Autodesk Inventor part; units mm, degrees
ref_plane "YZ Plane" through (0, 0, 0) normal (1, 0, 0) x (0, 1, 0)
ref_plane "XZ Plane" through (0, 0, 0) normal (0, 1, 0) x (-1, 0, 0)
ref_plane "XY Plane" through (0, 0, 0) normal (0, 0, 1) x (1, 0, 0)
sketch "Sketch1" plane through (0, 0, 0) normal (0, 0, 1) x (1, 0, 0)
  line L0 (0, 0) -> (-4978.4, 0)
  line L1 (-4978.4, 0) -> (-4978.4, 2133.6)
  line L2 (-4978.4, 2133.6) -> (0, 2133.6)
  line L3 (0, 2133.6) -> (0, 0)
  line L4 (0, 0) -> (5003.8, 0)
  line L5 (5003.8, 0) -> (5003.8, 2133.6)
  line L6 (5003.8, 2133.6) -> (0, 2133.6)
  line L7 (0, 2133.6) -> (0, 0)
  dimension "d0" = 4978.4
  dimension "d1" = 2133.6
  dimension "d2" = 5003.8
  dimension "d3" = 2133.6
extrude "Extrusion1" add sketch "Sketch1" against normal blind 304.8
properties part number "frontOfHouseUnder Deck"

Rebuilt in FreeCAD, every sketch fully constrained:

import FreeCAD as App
import Part
import Sketcher
from FreeCAD import Vector
Q = App.Units.Quantity


def add_polygon(sketch, points):
    """Adds a closed chain of lines whose ends are joined by coincident constraints."""
    first, n = sketch.GeometryCount, len(points)
    for a, b in zip(points, points[1:] + points[:1]):
        sketch.addGeometry(Part.LineSegment(App.Vector(*a, 0), App.Vector(*b, 0)), False)
    for i in range(n):
        sketch.addConstraint(Sketcher.Constraint("Coincident", first + i, 2, first + (i + 1) % n, 1))

doc = App.newDocument("Part")
params = doc.addObject("Spreadsheet::Sheet", "Params")
for row, (alias, value) in enumerate([
    ("sketch1_height", "84 in"),
    ("pad1_length", "12 in"),
], start=1):
    params.set(f"A{row}", alias)
    params.set(f"B{row}", "=" + value)
    params.setAlias(f"B{row}", alias)

body = doc.addObject("PartDesign::Body", "Body")

sketch1 = doc.addObject("Sketcher::SketchObject", "Sketch")
body.addObject(sketch1)
sketch1.AttachmentSupport = (doc.XY_Plane, [""])
sketch1.MapMode = "FlatFace"
add_polygon(sketch1, [(-4978, 0), (5004, 0), (5004, 2134), (-4978, 2134)])
sketch1.addConstraint(Sketcher.Constraint("Horizontal", 0))
sketch1.addConstraint(Sketcher.Constraint("Vertical", 1))
sketch1.addConstraint(Sketcher.Constraint("Horizontal", 2))
sketch1.addConstraint(Sketcher.Constraint("Vertical", 3))
sketch1.addConstraint(Sketcher.Constraint("PointOnObject", 0, 2, -1))
sketch1.addConstraint(Sketcher.Constraint("DistanceY", 1, 1, 1, 2, Q("84 in")))
sketch1.addConstraint(Sketcher.Constraint("DistanceX", -1, 1, 0, 2, Q("197 in")))
sketch1.addConstraint(Sketcher.Constraint("DistanceX", 2, 2, -1, 1, Q("196 in")))
sketch1.setExpression("Constraints[9]", "Params.sketch1_height")
pad1 = doc.addObject("PartDesign::Pad", "Pad")
body.addObject(pad1)
pad1.Profile = sketch1
pad1.setExpression("Length", "Params.pad1_length")
pad1.Reversed = True

doc.recompute()
